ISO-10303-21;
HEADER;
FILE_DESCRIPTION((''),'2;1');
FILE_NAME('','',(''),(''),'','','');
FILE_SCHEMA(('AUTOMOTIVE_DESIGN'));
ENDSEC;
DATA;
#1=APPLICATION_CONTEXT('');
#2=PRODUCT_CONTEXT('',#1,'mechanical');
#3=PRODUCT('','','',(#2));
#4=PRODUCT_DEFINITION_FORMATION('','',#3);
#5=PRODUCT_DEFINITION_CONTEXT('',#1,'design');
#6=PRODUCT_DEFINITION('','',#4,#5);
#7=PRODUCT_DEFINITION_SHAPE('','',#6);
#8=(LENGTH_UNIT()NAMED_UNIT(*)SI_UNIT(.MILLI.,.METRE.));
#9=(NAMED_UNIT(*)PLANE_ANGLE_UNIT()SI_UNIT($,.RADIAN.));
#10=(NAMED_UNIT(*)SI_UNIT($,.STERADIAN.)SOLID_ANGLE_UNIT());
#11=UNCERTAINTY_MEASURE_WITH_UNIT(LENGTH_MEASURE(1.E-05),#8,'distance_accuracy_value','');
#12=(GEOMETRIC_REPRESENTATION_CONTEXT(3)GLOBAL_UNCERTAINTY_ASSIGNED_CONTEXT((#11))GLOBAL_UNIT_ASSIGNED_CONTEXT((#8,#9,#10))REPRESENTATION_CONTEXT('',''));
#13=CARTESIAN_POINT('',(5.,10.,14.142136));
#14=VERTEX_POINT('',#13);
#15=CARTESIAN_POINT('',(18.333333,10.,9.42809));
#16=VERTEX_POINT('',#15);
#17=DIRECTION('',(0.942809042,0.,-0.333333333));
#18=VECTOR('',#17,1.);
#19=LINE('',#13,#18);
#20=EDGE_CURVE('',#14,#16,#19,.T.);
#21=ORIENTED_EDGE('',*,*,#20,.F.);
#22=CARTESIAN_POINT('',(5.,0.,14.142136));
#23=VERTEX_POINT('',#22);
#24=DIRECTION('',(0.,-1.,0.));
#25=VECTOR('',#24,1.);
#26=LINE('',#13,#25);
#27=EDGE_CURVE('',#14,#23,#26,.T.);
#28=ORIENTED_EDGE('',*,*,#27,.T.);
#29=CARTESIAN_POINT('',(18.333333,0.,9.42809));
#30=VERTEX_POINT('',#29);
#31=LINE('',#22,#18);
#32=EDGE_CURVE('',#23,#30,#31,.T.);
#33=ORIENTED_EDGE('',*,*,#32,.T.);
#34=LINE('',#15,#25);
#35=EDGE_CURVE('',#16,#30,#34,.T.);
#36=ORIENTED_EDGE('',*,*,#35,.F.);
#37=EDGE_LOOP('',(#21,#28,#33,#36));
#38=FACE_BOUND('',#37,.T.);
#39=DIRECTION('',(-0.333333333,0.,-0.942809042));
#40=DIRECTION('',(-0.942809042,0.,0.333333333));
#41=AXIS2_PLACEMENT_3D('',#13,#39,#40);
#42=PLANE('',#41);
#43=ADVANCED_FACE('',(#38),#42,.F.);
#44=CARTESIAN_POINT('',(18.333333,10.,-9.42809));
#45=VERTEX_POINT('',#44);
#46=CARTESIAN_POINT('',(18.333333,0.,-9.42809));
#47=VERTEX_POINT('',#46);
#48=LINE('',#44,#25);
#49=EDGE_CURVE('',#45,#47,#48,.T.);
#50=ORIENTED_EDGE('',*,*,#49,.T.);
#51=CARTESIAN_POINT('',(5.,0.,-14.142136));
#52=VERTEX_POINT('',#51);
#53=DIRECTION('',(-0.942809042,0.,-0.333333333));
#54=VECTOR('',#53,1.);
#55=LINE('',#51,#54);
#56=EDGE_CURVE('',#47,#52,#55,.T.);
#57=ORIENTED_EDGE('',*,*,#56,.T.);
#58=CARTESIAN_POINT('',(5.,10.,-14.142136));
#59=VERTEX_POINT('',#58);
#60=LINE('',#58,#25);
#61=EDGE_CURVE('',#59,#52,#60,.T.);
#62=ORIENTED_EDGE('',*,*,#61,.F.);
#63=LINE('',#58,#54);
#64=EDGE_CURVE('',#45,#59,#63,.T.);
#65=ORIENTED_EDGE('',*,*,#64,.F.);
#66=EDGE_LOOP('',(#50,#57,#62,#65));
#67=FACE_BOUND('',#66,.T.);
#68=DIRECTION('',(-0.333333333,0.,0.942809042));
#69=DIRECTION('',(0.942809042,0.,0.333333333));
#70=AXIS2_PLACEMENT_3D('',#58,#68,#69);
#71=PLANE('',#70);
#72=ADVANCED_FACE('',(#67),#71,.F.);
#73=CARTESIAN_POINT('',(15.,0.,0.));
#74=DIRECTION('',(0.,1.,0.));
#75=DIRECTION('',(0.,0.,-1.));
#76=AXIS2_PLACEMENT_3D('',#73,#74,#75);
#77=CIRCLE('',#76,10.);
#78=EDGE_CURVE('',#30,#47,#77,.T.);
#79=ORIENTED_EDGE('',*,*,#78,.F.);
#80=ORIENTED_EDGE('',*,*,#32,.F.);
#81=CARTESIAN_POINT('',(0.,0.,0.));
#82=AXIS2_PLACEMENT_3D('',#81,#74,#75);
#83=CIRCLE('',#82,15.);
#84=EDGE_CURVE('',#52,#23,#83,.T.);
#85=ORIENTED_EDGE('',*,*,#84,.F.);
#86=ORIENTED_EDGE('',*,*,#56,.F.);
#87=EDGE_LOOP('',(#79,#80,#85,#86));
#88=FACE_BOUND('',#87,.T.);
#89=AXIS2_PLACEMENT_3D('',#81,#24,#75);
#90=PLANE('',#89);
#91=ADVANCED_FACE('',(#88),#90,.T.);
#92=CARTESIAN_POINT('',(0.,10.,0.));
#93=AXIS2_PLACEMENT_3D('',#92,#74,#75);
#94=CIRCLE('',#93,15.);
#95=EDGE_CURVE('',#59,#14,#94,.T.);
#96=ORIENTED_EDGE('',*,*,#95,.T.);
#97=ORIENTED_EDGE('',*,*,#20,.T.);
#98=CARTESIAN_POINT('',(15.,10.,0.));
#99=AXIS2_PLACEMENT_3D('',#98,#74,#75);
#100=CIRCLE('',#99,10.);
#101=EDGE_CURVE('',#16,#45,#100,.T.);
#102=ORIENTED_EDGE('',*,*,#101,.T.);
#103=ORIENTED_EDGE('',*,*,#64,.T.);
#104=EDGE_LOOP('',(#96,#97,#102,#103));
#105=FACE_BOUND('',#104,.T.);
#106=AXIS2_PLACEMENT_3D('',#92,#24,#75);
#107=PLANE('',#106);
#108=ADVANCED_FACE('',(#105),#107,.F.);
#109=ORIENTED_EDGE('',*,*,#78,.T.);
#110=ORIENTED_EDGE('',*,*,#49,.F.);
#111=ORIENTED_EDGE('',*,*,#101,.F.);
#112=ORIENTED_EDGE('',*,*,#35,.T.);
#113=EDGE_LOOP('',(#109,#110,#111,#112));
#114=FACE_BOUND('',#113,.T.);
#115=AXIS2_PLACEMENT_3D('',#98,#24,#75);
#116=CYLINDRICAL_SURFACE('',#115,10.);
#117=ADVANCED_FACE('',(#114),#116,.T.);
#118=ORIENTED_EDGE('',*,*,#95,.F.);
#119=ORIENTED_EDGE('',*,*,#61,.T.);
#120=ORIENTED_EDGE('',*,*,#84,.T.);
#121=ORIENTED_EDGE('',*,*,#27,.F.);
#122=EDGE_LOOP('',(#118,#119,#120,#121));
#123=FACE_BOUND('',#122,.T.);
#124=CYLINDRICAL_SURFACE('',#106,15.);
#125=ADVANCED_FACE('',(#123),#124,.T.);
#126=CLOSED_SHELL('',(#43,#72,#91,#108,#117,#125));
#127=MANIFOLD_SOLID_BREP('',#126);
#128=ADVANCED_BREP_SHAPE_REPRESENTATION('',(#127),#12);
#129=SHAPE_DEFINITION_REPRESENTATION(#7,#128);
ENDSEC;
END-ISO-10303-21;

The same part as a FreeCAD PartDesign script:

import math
import FreeCAD as App
import Part
import Sketcher

V = App.Vector

doc = App.newDocument("Part")
params = doc.addObject("Spreadsheet::Sheet", "Params")
for row, (alias, value) in enumerate([
    ("sketch1_radius", "15 mm"),
    ("sketch1_radius2", "10 mm"),
    ("pad1_length", "10 mm"),
], start=1):
    params.set(f"A{row}", alias)
    params.set(f"B{row}", "=" + value)
    params.setAlias(f"B{row}", alias)

body = doc.addObject("PartDesign::Body", "Body")

sketch1 = body.newObject("Sketcher::SketchObject", "Sketch")
sketch1.AttachmentSupport = (doc.getObject("XZ_Plane"), [""])
sketch1.MapMode = "FlatFace"
sketch1.addGeometry([
    Part.LineSegment(V(18, -9, 0), V(5, -14, 0)),
    Part.ArcOfCircle(Part.Circle(V(0, 0, 0), V(0, 0, 1), 15), math.radians(71), math.radians(289)),
    Part.LineSegment(V(5, 14, 0), V(18, 9, 0)),
    Part.ArcOfCircle(Part.Circle(V(15, 0, 0), V(0, 0, 1), 10), math.radians(-71), math.radians(71)),
], False)
sketch1.addConstraint([
    Sketcher.Constraint("Tangent", 0, 2, 1, 2),
    Sketcher.Constraint("Tangent", 1, 1, 2, 1),
    Sketcher.Constraint("Tangent", 2, 2, 3, 2),
    Sketcher.Constraint("Tangent", 3, 1, 0, 1),
    Sketcher.Constraint("Coincident", 1, 3, -1, 1),
    Sketcher.Constraint("PointOnObject", 3, 3, -1),
    Sketcher.Constraint("Radius", 1, 15.0),
    Sketcher.Constraint("Radius", 3, 10.0),
    Sketcher.Constraint("DistanceX", -1, 1, 3, 3, 15.0),
])
sketch1.setExpression("Constraints[6]", "Params.sketch1_radius")
sketch1.setExpression("Constraints[7]", "Params.sketch1_radius2")
pad1 = body.newObject("PartDesign::Pad", "Pad")
pad1.Profile = sketch1
pad1.setExpression("Length", "Params.pad1_length")
pad1.Reversed = True

doc.recompute()
